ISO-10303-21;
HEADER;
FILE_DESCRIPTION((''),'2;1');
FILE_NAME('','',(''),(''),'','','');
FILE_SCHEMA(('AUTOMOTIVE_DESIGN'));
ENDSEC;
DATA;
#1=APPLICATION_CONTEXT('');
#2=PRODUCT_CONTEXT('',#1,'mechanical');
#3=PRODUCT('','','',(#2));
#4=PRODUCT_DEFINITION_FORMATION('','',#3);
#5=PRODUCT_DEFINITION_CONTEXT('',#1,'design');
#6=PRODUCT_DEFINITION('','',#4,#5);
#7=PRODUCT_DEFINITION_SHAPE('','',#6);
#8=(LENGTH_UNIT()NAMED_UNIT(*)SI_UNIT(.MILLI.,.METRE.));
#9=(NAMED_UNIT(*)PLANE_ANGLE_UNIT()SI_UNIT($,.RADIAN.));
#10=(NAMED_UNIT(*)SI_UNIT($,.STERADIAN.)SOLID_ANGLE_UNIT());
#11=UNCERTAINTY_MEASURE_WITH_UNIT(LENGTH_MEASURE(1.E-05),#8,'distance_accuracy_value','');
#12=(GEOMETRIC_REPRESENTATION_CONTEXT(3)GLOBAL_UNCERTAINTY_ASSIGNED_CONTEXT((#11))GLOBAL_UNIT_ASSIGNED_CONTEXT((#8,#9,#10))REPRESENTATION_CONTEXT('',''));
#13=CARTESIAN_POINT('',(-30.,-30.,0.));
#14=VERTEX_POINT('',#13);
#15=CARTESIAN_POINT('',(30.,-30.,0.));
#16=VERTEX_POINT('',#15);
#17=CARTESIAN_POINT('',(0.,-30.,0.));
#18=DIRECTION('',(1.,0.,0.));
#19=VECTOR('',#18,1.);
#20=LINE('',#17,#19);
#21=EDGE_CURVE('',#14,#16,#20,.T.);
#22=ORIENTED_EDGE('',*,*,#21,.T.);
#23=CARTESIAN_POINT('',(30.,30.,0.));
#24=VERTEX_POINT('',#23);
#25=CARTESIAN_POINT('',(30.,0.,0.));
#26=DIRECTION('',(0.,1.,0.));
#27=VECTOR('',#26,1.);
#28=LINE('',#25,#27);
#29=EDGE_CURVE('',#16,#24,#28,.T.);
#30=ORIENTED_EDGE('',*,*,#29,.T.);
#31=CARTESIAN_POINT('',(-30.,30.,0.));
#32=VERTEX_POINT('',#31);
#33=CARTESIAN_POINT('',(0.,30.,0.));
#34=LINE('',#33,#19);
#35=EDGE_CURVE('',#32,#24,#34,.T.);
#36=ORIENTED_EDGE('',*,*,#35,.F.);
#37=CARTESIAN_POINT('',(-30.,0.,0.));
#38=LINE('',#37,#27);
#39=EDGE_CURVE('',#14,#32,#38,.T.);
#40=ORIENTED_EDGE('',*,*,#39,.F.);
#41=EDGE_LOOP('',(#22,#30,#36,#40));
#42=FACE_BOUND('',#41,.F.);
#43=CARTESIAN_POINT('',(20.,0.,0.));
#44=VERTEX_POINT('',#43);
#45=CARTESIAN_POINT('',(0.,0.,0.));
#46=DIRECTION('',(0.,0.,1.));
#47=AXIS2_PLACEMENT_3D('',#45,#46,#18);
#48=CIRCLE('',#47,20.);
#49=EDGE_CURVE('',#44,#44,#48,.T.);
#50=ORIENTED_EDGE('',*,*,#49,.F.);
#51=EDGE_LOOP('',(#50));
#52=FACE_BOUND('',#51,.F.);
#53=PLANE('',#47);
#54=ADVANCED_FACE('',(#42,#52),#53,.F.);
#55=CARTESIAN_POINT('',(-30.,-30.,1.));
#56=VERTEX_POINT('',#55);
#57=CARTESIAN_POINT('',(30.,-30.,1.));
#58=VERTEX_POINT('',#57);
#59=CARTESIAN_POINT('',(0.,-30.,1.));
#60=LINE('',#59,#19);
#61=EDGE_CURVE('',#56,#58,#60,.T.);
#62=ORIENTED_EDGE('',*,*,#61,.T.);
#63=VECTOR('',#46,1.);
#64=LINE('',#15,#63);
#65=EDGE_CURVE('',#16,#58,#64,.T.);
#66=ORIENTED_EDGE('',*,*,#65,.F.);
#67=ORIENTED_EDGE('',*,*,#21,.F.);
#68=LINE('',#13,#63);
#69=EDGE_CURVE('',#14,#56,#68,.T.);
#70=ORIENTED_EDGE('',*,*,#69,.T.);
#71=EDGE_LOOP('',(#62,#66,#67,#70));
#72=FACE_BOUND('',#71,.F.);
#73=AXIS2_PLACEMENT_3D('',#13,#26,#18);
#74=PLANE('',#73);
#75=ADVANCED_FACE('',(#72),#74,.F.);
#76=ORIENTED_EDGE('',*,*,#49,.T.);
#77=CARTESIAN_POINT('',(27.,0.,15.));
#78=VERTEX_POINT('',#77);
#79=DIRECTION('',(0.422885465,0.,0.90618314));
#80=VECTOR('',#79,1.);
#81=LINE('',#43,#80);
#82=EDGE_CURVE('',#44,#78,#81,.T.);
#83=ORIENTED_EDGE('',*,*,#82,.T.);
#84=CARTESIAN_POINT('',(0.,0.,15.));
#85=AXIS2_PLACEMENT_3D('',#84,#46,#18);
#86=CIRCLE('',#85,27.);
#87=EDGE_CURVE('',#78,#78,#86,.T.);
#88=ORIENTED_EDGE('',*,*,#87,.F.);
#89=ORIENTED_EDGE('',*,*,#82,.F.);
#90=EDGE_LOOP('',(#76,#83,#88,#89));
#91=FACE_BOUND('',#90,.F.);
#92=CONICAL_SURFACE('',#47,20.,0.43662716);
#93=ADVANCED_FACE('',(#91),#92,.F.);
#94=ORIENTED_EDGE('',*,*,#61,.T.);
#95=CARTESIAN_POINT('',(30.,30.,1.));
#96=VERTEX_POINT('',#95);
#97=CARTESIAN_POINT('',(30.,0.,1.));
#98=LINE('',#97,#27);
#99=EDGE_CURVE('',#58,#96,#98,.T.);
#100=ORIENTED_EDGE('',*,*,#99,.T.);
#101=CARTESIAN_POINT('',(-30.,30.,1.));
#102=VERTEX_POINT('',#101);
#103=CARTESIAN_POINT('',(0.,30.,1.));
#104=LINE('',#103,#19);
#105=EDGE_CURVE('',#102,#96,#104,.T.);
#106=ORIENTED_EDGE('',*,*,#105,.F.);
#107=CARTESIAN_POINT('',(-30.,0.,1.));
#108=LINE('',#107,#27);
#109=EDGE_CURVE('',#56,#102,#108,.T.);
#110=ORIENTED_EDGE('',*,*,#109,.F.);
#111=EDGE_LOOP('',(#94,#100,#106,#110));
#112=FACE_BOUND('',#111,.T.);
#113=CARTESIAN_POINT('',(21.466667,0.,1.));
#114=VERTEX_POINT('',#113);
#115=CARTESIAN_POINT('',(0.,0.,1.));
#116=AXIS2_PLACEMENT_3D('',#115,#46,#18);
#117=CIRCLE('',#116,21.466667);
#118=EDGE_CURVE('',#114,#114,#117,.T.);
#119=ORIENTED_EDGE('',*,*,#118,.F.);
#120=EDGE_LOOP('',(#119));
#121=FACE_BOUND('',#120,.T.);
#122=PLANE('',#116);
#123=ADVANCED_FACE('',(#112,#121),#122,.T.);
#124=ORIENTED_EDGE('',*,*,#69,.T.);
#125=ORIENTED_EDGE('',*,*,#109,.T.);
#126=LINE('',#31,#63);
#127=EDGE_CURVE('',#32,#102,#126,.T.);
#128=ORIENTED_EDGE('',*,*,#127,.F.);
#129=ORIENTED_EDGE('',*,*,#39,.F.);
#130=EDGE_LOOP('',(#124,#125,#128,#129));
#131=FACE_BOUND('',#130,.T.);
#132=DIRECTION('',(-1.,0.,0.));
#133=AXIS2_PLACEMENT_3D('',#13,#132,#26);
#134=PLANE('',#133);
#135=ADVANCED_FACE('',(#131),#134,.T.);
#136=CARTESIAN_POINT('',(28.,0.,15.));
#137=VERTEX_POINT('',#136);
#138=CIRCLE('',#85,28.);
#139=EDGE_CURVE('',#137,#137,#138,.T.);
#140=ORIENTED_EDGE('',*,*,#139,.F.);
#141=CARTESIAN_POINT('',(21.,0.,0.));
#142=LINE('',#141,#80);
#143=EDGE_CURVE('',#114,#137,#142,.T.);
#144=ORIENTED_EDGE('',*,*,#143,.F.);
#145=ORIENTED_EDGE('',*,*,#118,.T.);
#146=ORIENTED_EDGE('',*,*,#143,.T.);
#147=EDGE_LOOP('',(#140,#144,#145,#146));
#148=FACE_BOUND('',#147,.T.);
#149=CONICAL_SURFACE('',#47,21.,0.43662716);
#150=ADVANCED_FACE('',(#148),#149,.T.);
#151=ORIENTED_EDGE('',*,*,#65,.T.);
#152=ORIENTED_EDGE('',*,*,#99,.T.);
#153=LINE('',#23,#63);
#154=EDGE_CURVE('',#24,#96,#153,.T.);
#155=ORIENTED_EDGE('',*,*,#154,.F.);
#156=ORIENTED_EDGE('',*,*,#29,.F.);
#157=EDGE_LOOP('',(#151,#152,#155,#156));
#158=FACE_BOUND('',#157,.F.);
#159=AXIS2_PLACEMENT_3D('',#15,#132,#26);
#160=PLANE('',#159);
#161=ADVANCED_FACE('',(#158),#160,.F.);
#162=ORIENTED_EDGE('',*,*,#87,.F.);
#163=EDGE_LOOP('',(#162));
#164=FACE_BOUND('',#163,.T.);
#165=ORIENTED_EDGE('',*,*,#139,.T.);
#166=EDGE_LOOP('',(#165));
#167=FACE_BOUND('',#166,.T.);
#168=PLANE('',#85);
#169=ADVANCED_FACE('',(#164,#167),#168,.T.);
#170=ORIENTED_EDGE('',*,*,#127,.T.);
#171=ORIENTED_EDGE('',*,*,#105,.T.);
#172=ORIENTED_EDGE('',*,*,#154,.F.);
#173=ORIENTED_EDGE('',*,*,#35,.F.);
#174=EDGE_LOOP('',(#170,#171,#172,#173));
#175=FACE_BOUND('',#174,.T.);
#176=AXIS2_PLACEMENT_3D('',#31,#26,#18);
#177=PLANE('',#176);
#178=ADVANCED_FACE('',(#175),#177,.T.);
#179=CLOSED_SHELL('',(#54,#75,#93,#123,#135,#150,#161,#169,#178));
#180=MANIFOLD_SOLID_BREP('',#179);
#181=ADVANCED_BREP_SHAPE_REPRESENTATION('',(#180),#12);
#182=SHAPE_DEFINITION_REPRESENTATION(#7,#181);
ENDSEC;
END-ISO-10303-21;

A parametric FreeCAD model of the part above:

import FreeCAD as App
import Part
import Sketcher
from FreeCAD import Vector

doc = App.newDocument("Part")
params = doc.addObject("Spreadsheet::Sheet", "Params")
for row, (alias, value) in enumerate([
    ("sketch1_diameter", "42 mm"),
    ("sketch1_width", "60 mm"),
    ("pad1_length", "1 mm"),
    ("sketch2_width", "20 mm"),
    ("sketch2_width2", "27 mm"),
    ("sketch2_height", "15 mm"),
    ("revolution_angle", "360 deg"),
    ("sketch3_width", "21 mm"),
    ("sketch3_width2", "28 mm"),
    ("sketch3_height", "15 mm"),
    ("revolution2_angle", "360 deg"),
], start=1):
    params.set(f"A{row}", alias)
    params.set(f"B{row}", "=" + value)
    params.setAlias(f"B{row}", alias)

body = doc.addObject("PartDesign::Body", "Body")

# Sketch on XY plane
sketch1 = doc.addObject("Sketcher::SketchObject", "Sketch")
body.addObject(sketch1)
sketch1.AttachmentSupport = (doc.XY_Plane, [""])
sketch1.MapMode = "FlatFace"
sketch1.addGeometry([
    Part.LineSegment(Vector(-30, 30, 0), Vector(-30, -30, 0)),  # 0
    Part.LineSegment(Vector(-30, -30, 0), Vector(30, -30, 0)),  # 1
    Part.LineSegment(Vector(30, -30, 0), Vector(30, 30, 0)),  # 2
    Part.LineSegment(Vector(30, 30, 0), Vector(-30, 30, 0)),  # 3
    Part.Circle(Vector(0, 0, 0), Vector(0, 0, 1), 21),  # 4
], False)
sketch1.addConstraint([
    Sketcher.Constraint("Coincident", 0, 2, 1, 1),
    Sketcher.Constraint("Coincident", 1, 2, 2, 1),
    Sketcher.Constraint("Coincident", 2, 2, 3, 1),
    Sketcher.Constraint("Coincident", 3, 2, 0, 1),
    Sketcher.Constraint("Vertical", 0),
    Sketcher.Constraint("Horizontal", 1),
    Sketcher.Constraint("Vertical", 2),
    Sketcher.Constraint("Horizontal", 3),
    Sketcher.Constraint("Coincident", 4, 3, -1, 1),
    Sketcher.Constraint("Symmetric", 0, 2, 2, 2, -1, 1),
    Sketcher.Constraint("Equal", 3, 0),
    Sketcher.Constraint("Diameter", 4, 42.0),
    Sketcher.Constraint("DistanceX", 1, 1, 1, 2, 60.0),
])
sketch1.setExpression("Constraints[11]", "Params.sketch1_diameter")
sketch1.setExpression("Constraints[12]", "Params.sketch1_width")
pad1 = doc.addObject("PartDesign::Pad", "Pad")
body.addObject(pad1)
pad1.Profile = sketch1
pad1.setExpression("Length", "Params.pad1_length")
body2 = doc.addObject("PartDesign::Body", "Body001")

# Sketch on XZ plane
sketch2 = doc.addObject("Sketcher::SketchObject", "Sketch001")
body2.addObject(sketch2)
sketch2.AttachmentSupport = (doc.getObject("XZ_Plane001"), [""])
sketch2.MapMode = "FlatFace"
sketch2.addGeometry([
    Part.LineSegment(Vector(0, 0, 0), Vector(20, 0, 0)),
    Part.LineSegment(Vector(20, 0, 0), Vector(27, 15, 0)),
    Part.LineSegment(Vector(27, 15, 0), Vector(0, 15, 0)),
    Part.LineSegment(Vector(0, 15, 0), Vector(0, 0, 0)),
], False)
sketch2.addConstraint([
    Sketcher.Constraint("Coincident", 0, 2, 1, 1),
    Sketcher.Constraint("Coincident", 1, 2, 2, 1),
    Sketcher.Constraint("Coincident", 2, 2, 3, 1),
    Sketcher.Constraint("Coincident", 3, 2, 0, 1),
    Sketcher.Constraint("Horizontal", 0),
    Sketcher.Constraint("Horizontal", 2),
    Sketcher.Constraint("Vertical", 3),
    Sketcher.Constraint("Coincident", 3, 2, -1, 1),
    Sketcher.Constraint("DistanceX", 0, 1, 0, 2, 20.0),
    Sketcher.Constraint("DistanceX", 2, 2, 2, 1, 27.0),
    Sketcher.Constraint("DistanceY", 3, 2, 3, 1, 15.0),
])
sketch2.setExpression("Constraints[8]", "Params.sketch2_width")
sketch2.setExpression("Constraints[9]", "Params.sketch2_width2")
sketch2.setExpression("Constraints[10]", "Params.sketch2_height")
revolution = doc.addObject("PartDesign::Revolution", "Revolution")
body2.addObject(revolution)
revolution.Profile = sketch2
revolution.ReferenceAxis = (sketch2, ["V_Axis"])
revolution.setExpression("Angle", "Params.revolution_angle")
body3 = doc.addObject("PartDesign::Body", "Body002")

# Sketch on XZ plane
sketch3 = doc.addObject("Sketcher::SketchObject", "Sketch002")
body3.addObject(sketch3)
sketch3.AttachmentSupport = (doc.getObject("XZ_Plane002"), [""])
sketch3.MapMode = "FlatFace"
sketch3.addGeometry([
    Part.LineSegment(Vector(0, 0, 0), Vector(21, 0, 0)),
    Part.LineSegment(Vector(21, 0, 0), Vector(28, 15, 0)),
    Part.LineSegment(Vector(28, 15, 0), Vector(0, 15, 0)),
    Part.LineSegment(Vector(0, 15, 0), Vector(0, 0, 0)),
], False)
sketch3.addConstraint([
    Sketcher.Constraint("Coincident", 0, 2, 1, 1),
    Sketcher.Constraint("Coincident", 1, 2, 2, 1),
    Sketcher.Constraint("Coincident", 2, 2, 3, 1),
    Sketcher.Constraint("Coincident", 3, 2, 0, 1),
    Sketcher.Constraint("Horizontal", 0),
    Sketcher.Constraint("Horizontal", 2),
    Sketcher.Constraint("Vertical", 3),
    Sketcher.Constraint("Coincident", 3, 2, -1, 1),
    Sketcher.Constraint("DistanceX", 0, 1, 0, 2, 21.0),
    Sketcher.Constraint("DistanceX", 2, 2, 2, 1, 28.0),
    Sketcher.Constraint("DistanceY", 3, 2, 3, 1, 15.0),
])
sketch3.setExpression("Constraints[8]", "Params.sketch3_width")
sketch3.setExpression("Constraints[9]", "Params.sketch3_width2")
sketch3.setExpression("Constraints[10]", "Params.sketch3_height")
revolution2 = doc.addObject("PartDesign::Revolution", "Revolution001")
body3.addObject(revolution2)
revolution2.Profile = sketch3
revolution2.ReferenceAxis = (sketch3, ["V_Axis"])
revolution2.setExpression("Angle", "Params.revolution2_angle")
doc.recompute()

boolean = doc.addObject("PartDesign::Boolean", "Boolean")
body3.addObject(boolean)
boolean.Type = "Cut"
boolean.addObjects([body2])
doc.recompute()

boolean2 = doc.addObject("PartDesign::Boolean", "Boolean001")
body3.addObject(boolean2)
boolean2.Type = "Fuse"
boolean2.addObjects([body])

doc.recompute()
